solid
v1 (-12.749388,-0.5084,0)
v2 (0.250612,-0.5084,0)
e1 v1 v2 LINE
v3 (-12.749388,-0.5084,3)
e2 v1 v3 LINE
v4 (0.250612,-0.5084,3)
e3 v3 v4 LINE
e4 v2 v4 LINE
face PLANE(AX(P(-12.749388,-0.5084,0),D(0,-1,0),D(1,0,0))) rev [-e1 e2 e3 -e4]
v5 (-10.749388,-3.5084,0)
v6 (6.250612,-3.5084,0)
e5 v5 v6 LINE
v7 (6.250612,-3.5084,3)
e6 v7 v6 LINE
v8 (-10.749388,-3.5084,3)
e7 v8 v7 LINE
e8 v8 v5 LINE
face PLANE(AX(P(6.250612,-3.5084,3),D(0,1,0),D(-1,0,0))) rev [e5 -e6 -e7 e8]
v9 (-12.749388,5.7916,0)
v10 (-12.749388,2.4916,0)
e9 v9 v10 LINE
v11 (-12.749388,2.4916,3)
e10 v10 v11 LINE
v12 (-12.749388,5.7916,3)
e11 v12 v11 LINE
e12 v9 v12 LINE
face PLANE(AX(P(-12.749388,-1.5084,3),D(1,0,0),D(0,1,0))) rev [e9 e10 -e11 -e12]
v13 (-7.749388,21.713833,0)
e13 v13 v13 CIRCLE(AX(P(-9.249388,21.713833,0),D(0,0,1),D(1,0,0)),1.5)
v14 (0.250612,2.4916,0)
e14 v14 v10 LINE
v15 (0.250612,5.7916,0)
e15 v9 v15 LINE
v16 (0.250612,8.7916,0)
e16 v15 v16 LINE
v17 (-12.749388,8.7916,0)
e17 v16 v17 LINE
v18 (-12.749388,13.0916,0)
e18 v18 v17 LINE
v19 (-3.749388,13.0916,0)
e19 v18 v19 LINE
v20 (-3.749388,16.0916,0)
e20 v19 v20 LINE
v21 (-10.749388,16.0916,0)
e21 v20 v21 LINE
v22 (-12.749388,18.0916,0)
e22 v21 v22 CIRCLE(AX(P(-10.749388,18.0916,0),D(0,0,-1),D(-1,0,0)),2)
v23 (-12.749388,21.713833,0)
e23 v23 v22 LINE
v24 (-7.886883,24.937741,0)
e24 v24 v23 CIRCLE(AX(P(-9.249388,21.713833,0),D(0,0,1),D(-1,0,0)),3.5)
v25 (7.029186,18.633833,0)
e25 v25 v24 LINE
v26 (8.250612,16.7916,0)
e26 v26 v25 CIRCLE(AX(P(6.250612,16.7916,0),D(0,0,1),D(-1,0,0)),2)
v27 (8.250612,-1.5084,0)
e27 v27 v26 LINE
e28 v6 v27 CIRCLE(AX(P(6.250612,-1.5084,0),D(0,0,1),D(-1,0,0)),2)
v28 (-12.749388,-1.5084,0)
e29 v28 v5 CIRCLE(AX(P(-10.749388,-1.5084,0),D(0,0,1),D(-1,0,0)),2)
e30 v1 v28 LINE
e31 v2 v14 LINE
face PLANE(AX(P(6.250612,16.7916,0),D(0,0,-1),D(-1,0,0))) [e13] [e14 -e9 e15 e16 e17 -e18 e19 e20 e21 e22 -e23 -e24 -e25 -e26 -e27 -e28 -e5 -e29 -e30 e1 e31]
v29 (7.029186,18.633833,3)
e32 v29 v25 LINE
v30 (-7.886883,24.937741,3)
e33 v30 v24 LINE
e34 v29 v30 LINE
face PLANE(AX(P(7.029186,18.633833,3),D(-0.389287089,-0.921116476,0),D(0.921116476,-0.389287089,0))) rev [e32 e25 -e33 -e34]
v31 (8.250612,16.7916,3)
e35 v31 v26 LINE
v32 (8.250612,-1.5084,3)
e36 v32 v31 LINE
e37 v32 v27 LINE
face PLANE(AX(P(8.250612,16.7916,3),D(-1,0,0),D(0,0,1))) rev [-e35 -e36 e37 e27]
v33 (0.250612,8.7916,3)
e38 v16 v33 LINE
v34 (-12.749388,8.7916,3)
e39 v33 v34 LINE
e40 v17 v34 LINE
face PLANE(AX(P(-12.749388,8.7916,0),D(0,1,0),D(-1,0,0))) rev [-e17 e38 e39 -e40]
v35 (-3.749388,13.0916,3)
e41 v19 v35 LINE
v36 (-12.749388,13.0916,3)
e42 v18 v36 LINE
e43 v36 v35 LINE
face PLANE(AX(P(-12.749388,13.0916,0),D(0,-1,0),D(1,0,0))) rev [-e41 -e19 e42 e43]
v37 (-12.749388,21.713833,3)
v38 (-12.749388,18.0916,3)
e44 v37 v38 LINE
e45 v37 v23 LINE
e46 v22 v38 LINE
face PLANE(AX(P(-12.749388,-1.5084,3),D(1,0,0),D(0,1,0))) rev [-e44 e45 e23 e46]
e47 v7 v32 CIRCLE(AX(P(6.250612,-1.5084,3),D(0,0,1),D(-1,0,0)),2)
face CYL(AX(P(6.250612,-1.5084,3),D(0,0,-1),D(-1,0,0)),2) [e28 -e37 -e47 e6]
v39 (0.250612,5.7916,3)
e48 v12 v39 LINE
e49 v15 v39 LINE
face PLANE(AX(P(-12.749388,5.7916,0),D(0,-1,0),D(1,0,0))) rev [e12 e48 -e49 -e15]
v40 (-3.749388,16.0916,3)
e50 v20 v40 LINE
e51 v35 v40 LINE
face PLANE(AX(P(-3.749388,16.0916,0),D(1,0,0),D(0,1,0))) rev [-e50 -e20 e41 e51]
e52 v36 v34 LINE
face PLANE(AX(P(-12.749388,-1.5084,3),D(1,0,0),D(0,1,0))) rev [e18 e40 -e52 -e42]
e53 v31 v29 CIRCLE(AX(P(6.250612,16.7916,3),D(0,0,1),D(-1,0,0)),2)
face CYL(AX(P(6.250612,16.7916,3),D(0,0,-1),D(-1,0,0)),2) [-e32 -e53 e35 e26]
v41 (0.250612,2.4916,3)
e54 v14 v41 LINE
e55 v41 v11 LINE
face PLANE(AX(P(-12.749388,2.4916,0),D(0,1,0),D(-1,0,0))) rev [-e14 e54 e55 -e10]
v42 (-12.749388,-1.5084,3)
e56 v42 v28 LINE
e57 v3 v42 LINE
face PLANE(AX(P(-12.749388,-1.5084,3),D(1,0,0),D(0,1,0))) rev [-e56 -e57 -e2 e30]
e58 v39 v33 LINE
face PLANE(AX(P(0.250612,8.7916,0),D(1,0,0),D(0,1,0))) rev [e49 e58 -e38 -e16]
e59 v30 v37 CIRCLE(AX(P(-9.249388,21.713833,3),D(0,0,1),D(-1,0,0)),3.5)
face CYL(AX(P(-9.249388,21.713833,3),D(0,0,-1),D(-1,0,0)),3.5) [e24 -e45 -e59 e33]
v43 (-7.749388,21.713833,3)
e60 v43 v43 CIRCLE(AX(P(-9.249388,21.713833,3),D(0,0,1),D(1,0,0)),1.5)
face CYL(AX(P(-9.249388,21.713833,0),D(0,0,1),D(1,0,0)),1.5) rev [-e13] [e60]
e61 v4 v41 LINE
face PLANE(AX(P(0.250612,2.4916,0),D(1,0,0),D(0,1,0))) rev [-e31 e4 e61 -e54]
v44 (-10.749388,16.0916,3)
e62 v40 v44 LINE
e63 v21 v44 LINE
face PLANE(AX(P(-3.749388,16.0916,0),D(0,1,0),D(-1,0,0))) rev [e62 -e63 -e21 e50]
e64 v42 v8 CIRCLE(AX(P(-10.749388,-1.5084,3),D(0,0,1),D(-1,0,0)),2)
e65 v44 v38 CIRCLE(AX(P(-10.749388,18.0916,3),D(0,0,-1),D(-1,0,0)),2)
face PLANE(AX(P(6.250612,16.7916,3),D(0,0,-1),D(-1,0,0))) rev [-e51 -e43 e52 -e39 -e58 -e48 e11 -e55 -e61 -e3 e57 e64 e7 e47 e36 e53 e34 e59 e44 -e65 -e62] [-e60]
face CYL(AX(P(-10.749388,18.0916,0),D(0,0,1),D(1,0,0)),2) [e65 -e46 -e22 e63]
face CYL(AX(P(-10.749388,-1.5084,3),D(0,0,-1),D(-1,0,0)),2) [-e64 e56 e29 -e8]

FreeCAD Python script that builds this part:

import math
import FreeCAD as App
import Part
import Sketcher
from FreeCAD import Vector
Q = App.Units.Quantity

doc = App.newDocument("Part")
body = doc.addObject("PartDesign::Body", "Body")

# Sketch on XY plane
sketch1 = doc.addObject("Sketcher::SketchObject", "Sketch")
body.addObject(sketch1)
sketch1.AttachmentSupport = (doc.XY_Plane, [""])
sketch1.MapMode = "FlatFace"
sketch1.addGeometry([
    Part.LineSegment(Vector(8.250612, -1.5084, 0), Vector(8.250612, 16.7916, 0)),  # 0
    Part.ArcOfCircle(Part.Circle(Vector(6.250612, 16.7916, 0), Vector(0, 0, 1), 2), math.radians(0), math.radians(67.089853)),  # 1
    Part.LineSegment(Vector(7.029186, 18.633833, 0), Vector(-7.886883, 24.937741, 0)),  # 2
    Part.ArcOfCircle(Part.Circle(Vector(-9.249388, 21.713833, 0), Vector(0, 0, 1), 3.5), math.radians(67.089853), math.radians(180)),  # 3
    Part.LineSegment(Vector(-12.749388, 21.713833, 0), Vector(-12.749388, -1.5084, 0)),  # 4
    Part.ArcOfCircle(Part.Circle(Vector(-10.749388, -1.5084, 0), Vector(0, 0, 1), 2), math.radians(180), math.radians(270)),  # 5
    Part.LineSegment(Vector(-10.749388, -3.5084, 0), Vector(6.250612, -3.5084, 0)),  # 6
    Part.ArcOfCircle(Part.Circle(Vector(6.250612, -1.5084, 0), Vector(0, 0, 1), 2), math.radians(-90), math.radians(0)),  # 7
], False)
sketch1.addConstraint([
    Sketcher.Constraint("Tangent", 0, 2, 1, 1),
    Sketcher.Constraint("Tangent", 1, 2, 2, 1),
    Sketcher.Constraint("Tangent", 2, 2, 3, 1),
    Sketcher.Constraint("Tangent", 3, 2, 4, 1),
    Sketcher.Constraint("Tangent", 4, 2, 5, 1),
    Sketcher.Constraint("Tangent", 5, 2, 6, 1),
    Sketcher.Constraint("Tangent", 6, 2, 7, 1),
    Sketcher.Constraint("Tangent", 7, 2, 0, 1),
    Sketcher.Constraint("Vertical", 0),
    Sketcher.Constraint("Vertical", 4),
    Sketcher.Constraint("Horizontal", 6),
    Sketcher.Constraint("Equal", 1, 5),
    Sketcher.Constraint("Equal", 5, 7),
    Sketcher.Constraint("Radius", 1, Q("2 mm")),
    Sketcher.Constraint("Radius", 3, Q("3.5 mm")),
    Sketcher.Constraint("DistanceX", 6, 1, 6, 2, Q("17 mm")),
    Sketcher.Constraint("DistanceY", 0, 1, 0, 2, Q("18.3 mm")),
    Sketcher.Constraint("DistanceY", 1, 2, 3, 3, Q("3.08 mm")),
    Sketcher.Constraint("DistanceY", -1, 1, 1, 3, Q("16.7916 mm")),
    Sketcher.Constraint("DistanceX", -1, 1, 1, 3, Q("6.250612 mm")),
])
pad1 = doc.addObject("PartDesign::Pad", "Pad")
body.addObject(pad1)
pad1.Profile = sketch1
pad1.Length = 3

# Sketch on XY plane
sketch2 = doc.addObject("Sketcher::SketchObject", "Sketch001")
body.addObject(sketch2)
sketch2.AttachmentSupport = (doc.XY_Plane, [""])
sketch2.MapMode = "FlatFace"
sketch2.AttachmentOffset = App.Placement(Vector(0, 0, 3), App.Rotation())
sketch2.addGeometry([
    Part.LineSegment(Vector(-12.749388, 13.0916, 0), Vector(-3.749388, 13.0916, 0)),  # 0
    Part.LineSegment(Vector(-3.749388, 13.0916, 0), Vector(-3.749388, 16.0916, 0)),  # 1
    Part.LineSegment(Vector(-3.749388, 16.0916, 0), Vector(-10.749388, 16.0916, 0)),  # 2
    Part.ArcOfCircle(Part.Circle(Vector(-10.749388, 18.0916, 0), Vector(0, 0, 1), 2), math.radians(180), math.radians(270)),  # 3
    Part.LineSegment(Vector(-12.749388, 18.0916, 0), Vector(-12.749388, 13.0916, 0)),  # 4
    Part.LineSegment(Vector(-12.749388, 8.7916, 0), Vector(-12.749388, 5.7916, 0)),  # 5
    Part.LineSegment(Vector(-12.749388, 5.7916, 0), Vector(0.250612, 5.7916, 0)),  # 6
    Part.LineSegment(Vector(0.250612, 5.7916, 0), Vector(0.250612, 8.7916, 0)),  # 7
    Part.LineSegment(Vector(0.250612, 8.7916, 0), Vector(-12.749388, 8.7916, 0)),  # 8
    Part.LineSegment(Vector(-12.749388, 2.4916, 0), Vector(-12.749388, -0.5084, 0)),  # 9
    Part.LineSegment(Vector(-12.749388, -0.5084, 0), Vector(0.250612, -0.5084, 0)),  # 10
    Part.LineSegment(Vector(0.250612, -0.5084, 0), Vector(0.250612, 2.4916, 0)),  # 11
    Part.LineSegment(Vector(0.250612, 2.4916, 0), Vector(-12.749388, 2.4916, 0)),  # 12
], False)
sketch2.addConstraint([
    Sketcher.Constraint("Coincident", 0, 2, 1, 1),
    Sketcher.Constraint("Coincident", 1, 2, 2, 1),
    Sketcher.Constraint("Tangent", 2, 2, 3, 2),
    Sketcher.Constraint("Tangent", 3, 1, 4, 1),
    Sketcher.Constraint("Coincident", 4, 2, 0, 1),
    Sketcher.Constraint("Coincident", 5, 2, 6, 1),
    Sketcher.Constraint("Coincident", 6, 2, 7, 1),
    Sketcher.Constraint("Coincident", 7, 2, 8, 1),
    Sketcher.Constraint("Coincident", 8, 2, 5, 1),
    Sketcher.Constraint("Coincident", 9, 2, 10, 1),
    Sketcher.Constraint("Coincident", 10, 2, 11, 1),
    Sketcher.Constraint("Coincident", 11, 2, 12, 1),
    Sketcher.Constraint("Coincident", 12, 2, 9, 1),
    Sketcher.Constraint("Horizontal", 0),
    Sketcher.Constraint("Vertical", 1),
    Sketcher.Constraint("Horizontal", 2),
    Sketcher.Constraint("Vertical", 4),
    Sketcher.Constraint("Vertical", 5),
    Sketcher.Constraint("Horizontal", 6),
    Sketcher.Constraint("Vertical", 7),
    Sketcher.Constraint("Horizontal", 8),
    Sketcher.Constraint("Vertical", 9),
    Sketcher.Constraint("Horizontal", 10),
    Sketcher.Constraint("Vertical", 11),
    Sketcher.Constraint("Horizontal", 12),
    Sketcher.Constraint("Vertical", 4, 2, 5, 2),
    Sketcher.Constraint("Vertical", 8, 2, 9, 2),
    Sketcher.Constraint("Vertical", 7, 2, 10, 2),
    Sketcher.Constraint("Equal", 1, 5),
    Sketcher.Constraint("Equal", 7, 9),
    Sketcher.Constraint("Radius", 3, Q("2 mm")),
    Sketcher.Constraint("DistanceX", 0, 1, 0, 2, Q("9 mm")),
    Sketcher.Constraint("DistanceX", 6, 1, 6, 2, Q("13 mm")),
    Sketcher.Constraint("DistanceY", 1, 1, 1, 2, Q("3 mm")),
    Sketcher.Constraint("DistanceY", 5, 2, 4, 2, Q("7.3 mm")),
    Sketcher.Constraint("DistanceY", 9, 2, 5, 2, Q("6.3 mm")),
    Sketcher.Constraint("DistanceY", -1, 1, 3, 3, Q("18.0916 mm")),
    Sketcher.Constraint("DistanceX", 3, 3, -1, 1, Q("10.749388 mm")),
])
pocket1 = doc.addObject("PartDesign::Pocket", "Pocket")
body.addObject(pocket1)
pocket1.Profile = sketch2
pocket1.Length = 3

# Sketch on XY plane
sketch3 = doc.addObject("Sketcher::SketchObject", "Sketch002")
body.addObject(sketch3)
sketch3.AttachmentSupport = (doc.XY_Plane, [""])
sketch3.MapMode = "FlatFace"
sketch3.AttachmentOffset = App.Placement(Vector(0, 0, 3), App.Rotation())
sketch3.addGeometry(Part.Circle(Vector(-9.249388, 21.713833, 0), Vector(0, 0, 1), 1.5), False)
sketch3.addConstraint([
    Sketcher.Constraint("Diameter", 0, Q("3 mm")),
    Sketcher.Constraint("DistanceX", 0, 3, -1, 1, Q("9.249388 mm")),
    Sketcher.Constraint("DistanceY", -1, 1, 0, 3, Q("21.713833 mm")),
])
pocket2 = doc.addObject("PartDesign::Pocket", "Pocket001")
body.addObject(pocket2)
pocket2.Profile = sketch3
pocket2.Length = 3

doc.recompute()
